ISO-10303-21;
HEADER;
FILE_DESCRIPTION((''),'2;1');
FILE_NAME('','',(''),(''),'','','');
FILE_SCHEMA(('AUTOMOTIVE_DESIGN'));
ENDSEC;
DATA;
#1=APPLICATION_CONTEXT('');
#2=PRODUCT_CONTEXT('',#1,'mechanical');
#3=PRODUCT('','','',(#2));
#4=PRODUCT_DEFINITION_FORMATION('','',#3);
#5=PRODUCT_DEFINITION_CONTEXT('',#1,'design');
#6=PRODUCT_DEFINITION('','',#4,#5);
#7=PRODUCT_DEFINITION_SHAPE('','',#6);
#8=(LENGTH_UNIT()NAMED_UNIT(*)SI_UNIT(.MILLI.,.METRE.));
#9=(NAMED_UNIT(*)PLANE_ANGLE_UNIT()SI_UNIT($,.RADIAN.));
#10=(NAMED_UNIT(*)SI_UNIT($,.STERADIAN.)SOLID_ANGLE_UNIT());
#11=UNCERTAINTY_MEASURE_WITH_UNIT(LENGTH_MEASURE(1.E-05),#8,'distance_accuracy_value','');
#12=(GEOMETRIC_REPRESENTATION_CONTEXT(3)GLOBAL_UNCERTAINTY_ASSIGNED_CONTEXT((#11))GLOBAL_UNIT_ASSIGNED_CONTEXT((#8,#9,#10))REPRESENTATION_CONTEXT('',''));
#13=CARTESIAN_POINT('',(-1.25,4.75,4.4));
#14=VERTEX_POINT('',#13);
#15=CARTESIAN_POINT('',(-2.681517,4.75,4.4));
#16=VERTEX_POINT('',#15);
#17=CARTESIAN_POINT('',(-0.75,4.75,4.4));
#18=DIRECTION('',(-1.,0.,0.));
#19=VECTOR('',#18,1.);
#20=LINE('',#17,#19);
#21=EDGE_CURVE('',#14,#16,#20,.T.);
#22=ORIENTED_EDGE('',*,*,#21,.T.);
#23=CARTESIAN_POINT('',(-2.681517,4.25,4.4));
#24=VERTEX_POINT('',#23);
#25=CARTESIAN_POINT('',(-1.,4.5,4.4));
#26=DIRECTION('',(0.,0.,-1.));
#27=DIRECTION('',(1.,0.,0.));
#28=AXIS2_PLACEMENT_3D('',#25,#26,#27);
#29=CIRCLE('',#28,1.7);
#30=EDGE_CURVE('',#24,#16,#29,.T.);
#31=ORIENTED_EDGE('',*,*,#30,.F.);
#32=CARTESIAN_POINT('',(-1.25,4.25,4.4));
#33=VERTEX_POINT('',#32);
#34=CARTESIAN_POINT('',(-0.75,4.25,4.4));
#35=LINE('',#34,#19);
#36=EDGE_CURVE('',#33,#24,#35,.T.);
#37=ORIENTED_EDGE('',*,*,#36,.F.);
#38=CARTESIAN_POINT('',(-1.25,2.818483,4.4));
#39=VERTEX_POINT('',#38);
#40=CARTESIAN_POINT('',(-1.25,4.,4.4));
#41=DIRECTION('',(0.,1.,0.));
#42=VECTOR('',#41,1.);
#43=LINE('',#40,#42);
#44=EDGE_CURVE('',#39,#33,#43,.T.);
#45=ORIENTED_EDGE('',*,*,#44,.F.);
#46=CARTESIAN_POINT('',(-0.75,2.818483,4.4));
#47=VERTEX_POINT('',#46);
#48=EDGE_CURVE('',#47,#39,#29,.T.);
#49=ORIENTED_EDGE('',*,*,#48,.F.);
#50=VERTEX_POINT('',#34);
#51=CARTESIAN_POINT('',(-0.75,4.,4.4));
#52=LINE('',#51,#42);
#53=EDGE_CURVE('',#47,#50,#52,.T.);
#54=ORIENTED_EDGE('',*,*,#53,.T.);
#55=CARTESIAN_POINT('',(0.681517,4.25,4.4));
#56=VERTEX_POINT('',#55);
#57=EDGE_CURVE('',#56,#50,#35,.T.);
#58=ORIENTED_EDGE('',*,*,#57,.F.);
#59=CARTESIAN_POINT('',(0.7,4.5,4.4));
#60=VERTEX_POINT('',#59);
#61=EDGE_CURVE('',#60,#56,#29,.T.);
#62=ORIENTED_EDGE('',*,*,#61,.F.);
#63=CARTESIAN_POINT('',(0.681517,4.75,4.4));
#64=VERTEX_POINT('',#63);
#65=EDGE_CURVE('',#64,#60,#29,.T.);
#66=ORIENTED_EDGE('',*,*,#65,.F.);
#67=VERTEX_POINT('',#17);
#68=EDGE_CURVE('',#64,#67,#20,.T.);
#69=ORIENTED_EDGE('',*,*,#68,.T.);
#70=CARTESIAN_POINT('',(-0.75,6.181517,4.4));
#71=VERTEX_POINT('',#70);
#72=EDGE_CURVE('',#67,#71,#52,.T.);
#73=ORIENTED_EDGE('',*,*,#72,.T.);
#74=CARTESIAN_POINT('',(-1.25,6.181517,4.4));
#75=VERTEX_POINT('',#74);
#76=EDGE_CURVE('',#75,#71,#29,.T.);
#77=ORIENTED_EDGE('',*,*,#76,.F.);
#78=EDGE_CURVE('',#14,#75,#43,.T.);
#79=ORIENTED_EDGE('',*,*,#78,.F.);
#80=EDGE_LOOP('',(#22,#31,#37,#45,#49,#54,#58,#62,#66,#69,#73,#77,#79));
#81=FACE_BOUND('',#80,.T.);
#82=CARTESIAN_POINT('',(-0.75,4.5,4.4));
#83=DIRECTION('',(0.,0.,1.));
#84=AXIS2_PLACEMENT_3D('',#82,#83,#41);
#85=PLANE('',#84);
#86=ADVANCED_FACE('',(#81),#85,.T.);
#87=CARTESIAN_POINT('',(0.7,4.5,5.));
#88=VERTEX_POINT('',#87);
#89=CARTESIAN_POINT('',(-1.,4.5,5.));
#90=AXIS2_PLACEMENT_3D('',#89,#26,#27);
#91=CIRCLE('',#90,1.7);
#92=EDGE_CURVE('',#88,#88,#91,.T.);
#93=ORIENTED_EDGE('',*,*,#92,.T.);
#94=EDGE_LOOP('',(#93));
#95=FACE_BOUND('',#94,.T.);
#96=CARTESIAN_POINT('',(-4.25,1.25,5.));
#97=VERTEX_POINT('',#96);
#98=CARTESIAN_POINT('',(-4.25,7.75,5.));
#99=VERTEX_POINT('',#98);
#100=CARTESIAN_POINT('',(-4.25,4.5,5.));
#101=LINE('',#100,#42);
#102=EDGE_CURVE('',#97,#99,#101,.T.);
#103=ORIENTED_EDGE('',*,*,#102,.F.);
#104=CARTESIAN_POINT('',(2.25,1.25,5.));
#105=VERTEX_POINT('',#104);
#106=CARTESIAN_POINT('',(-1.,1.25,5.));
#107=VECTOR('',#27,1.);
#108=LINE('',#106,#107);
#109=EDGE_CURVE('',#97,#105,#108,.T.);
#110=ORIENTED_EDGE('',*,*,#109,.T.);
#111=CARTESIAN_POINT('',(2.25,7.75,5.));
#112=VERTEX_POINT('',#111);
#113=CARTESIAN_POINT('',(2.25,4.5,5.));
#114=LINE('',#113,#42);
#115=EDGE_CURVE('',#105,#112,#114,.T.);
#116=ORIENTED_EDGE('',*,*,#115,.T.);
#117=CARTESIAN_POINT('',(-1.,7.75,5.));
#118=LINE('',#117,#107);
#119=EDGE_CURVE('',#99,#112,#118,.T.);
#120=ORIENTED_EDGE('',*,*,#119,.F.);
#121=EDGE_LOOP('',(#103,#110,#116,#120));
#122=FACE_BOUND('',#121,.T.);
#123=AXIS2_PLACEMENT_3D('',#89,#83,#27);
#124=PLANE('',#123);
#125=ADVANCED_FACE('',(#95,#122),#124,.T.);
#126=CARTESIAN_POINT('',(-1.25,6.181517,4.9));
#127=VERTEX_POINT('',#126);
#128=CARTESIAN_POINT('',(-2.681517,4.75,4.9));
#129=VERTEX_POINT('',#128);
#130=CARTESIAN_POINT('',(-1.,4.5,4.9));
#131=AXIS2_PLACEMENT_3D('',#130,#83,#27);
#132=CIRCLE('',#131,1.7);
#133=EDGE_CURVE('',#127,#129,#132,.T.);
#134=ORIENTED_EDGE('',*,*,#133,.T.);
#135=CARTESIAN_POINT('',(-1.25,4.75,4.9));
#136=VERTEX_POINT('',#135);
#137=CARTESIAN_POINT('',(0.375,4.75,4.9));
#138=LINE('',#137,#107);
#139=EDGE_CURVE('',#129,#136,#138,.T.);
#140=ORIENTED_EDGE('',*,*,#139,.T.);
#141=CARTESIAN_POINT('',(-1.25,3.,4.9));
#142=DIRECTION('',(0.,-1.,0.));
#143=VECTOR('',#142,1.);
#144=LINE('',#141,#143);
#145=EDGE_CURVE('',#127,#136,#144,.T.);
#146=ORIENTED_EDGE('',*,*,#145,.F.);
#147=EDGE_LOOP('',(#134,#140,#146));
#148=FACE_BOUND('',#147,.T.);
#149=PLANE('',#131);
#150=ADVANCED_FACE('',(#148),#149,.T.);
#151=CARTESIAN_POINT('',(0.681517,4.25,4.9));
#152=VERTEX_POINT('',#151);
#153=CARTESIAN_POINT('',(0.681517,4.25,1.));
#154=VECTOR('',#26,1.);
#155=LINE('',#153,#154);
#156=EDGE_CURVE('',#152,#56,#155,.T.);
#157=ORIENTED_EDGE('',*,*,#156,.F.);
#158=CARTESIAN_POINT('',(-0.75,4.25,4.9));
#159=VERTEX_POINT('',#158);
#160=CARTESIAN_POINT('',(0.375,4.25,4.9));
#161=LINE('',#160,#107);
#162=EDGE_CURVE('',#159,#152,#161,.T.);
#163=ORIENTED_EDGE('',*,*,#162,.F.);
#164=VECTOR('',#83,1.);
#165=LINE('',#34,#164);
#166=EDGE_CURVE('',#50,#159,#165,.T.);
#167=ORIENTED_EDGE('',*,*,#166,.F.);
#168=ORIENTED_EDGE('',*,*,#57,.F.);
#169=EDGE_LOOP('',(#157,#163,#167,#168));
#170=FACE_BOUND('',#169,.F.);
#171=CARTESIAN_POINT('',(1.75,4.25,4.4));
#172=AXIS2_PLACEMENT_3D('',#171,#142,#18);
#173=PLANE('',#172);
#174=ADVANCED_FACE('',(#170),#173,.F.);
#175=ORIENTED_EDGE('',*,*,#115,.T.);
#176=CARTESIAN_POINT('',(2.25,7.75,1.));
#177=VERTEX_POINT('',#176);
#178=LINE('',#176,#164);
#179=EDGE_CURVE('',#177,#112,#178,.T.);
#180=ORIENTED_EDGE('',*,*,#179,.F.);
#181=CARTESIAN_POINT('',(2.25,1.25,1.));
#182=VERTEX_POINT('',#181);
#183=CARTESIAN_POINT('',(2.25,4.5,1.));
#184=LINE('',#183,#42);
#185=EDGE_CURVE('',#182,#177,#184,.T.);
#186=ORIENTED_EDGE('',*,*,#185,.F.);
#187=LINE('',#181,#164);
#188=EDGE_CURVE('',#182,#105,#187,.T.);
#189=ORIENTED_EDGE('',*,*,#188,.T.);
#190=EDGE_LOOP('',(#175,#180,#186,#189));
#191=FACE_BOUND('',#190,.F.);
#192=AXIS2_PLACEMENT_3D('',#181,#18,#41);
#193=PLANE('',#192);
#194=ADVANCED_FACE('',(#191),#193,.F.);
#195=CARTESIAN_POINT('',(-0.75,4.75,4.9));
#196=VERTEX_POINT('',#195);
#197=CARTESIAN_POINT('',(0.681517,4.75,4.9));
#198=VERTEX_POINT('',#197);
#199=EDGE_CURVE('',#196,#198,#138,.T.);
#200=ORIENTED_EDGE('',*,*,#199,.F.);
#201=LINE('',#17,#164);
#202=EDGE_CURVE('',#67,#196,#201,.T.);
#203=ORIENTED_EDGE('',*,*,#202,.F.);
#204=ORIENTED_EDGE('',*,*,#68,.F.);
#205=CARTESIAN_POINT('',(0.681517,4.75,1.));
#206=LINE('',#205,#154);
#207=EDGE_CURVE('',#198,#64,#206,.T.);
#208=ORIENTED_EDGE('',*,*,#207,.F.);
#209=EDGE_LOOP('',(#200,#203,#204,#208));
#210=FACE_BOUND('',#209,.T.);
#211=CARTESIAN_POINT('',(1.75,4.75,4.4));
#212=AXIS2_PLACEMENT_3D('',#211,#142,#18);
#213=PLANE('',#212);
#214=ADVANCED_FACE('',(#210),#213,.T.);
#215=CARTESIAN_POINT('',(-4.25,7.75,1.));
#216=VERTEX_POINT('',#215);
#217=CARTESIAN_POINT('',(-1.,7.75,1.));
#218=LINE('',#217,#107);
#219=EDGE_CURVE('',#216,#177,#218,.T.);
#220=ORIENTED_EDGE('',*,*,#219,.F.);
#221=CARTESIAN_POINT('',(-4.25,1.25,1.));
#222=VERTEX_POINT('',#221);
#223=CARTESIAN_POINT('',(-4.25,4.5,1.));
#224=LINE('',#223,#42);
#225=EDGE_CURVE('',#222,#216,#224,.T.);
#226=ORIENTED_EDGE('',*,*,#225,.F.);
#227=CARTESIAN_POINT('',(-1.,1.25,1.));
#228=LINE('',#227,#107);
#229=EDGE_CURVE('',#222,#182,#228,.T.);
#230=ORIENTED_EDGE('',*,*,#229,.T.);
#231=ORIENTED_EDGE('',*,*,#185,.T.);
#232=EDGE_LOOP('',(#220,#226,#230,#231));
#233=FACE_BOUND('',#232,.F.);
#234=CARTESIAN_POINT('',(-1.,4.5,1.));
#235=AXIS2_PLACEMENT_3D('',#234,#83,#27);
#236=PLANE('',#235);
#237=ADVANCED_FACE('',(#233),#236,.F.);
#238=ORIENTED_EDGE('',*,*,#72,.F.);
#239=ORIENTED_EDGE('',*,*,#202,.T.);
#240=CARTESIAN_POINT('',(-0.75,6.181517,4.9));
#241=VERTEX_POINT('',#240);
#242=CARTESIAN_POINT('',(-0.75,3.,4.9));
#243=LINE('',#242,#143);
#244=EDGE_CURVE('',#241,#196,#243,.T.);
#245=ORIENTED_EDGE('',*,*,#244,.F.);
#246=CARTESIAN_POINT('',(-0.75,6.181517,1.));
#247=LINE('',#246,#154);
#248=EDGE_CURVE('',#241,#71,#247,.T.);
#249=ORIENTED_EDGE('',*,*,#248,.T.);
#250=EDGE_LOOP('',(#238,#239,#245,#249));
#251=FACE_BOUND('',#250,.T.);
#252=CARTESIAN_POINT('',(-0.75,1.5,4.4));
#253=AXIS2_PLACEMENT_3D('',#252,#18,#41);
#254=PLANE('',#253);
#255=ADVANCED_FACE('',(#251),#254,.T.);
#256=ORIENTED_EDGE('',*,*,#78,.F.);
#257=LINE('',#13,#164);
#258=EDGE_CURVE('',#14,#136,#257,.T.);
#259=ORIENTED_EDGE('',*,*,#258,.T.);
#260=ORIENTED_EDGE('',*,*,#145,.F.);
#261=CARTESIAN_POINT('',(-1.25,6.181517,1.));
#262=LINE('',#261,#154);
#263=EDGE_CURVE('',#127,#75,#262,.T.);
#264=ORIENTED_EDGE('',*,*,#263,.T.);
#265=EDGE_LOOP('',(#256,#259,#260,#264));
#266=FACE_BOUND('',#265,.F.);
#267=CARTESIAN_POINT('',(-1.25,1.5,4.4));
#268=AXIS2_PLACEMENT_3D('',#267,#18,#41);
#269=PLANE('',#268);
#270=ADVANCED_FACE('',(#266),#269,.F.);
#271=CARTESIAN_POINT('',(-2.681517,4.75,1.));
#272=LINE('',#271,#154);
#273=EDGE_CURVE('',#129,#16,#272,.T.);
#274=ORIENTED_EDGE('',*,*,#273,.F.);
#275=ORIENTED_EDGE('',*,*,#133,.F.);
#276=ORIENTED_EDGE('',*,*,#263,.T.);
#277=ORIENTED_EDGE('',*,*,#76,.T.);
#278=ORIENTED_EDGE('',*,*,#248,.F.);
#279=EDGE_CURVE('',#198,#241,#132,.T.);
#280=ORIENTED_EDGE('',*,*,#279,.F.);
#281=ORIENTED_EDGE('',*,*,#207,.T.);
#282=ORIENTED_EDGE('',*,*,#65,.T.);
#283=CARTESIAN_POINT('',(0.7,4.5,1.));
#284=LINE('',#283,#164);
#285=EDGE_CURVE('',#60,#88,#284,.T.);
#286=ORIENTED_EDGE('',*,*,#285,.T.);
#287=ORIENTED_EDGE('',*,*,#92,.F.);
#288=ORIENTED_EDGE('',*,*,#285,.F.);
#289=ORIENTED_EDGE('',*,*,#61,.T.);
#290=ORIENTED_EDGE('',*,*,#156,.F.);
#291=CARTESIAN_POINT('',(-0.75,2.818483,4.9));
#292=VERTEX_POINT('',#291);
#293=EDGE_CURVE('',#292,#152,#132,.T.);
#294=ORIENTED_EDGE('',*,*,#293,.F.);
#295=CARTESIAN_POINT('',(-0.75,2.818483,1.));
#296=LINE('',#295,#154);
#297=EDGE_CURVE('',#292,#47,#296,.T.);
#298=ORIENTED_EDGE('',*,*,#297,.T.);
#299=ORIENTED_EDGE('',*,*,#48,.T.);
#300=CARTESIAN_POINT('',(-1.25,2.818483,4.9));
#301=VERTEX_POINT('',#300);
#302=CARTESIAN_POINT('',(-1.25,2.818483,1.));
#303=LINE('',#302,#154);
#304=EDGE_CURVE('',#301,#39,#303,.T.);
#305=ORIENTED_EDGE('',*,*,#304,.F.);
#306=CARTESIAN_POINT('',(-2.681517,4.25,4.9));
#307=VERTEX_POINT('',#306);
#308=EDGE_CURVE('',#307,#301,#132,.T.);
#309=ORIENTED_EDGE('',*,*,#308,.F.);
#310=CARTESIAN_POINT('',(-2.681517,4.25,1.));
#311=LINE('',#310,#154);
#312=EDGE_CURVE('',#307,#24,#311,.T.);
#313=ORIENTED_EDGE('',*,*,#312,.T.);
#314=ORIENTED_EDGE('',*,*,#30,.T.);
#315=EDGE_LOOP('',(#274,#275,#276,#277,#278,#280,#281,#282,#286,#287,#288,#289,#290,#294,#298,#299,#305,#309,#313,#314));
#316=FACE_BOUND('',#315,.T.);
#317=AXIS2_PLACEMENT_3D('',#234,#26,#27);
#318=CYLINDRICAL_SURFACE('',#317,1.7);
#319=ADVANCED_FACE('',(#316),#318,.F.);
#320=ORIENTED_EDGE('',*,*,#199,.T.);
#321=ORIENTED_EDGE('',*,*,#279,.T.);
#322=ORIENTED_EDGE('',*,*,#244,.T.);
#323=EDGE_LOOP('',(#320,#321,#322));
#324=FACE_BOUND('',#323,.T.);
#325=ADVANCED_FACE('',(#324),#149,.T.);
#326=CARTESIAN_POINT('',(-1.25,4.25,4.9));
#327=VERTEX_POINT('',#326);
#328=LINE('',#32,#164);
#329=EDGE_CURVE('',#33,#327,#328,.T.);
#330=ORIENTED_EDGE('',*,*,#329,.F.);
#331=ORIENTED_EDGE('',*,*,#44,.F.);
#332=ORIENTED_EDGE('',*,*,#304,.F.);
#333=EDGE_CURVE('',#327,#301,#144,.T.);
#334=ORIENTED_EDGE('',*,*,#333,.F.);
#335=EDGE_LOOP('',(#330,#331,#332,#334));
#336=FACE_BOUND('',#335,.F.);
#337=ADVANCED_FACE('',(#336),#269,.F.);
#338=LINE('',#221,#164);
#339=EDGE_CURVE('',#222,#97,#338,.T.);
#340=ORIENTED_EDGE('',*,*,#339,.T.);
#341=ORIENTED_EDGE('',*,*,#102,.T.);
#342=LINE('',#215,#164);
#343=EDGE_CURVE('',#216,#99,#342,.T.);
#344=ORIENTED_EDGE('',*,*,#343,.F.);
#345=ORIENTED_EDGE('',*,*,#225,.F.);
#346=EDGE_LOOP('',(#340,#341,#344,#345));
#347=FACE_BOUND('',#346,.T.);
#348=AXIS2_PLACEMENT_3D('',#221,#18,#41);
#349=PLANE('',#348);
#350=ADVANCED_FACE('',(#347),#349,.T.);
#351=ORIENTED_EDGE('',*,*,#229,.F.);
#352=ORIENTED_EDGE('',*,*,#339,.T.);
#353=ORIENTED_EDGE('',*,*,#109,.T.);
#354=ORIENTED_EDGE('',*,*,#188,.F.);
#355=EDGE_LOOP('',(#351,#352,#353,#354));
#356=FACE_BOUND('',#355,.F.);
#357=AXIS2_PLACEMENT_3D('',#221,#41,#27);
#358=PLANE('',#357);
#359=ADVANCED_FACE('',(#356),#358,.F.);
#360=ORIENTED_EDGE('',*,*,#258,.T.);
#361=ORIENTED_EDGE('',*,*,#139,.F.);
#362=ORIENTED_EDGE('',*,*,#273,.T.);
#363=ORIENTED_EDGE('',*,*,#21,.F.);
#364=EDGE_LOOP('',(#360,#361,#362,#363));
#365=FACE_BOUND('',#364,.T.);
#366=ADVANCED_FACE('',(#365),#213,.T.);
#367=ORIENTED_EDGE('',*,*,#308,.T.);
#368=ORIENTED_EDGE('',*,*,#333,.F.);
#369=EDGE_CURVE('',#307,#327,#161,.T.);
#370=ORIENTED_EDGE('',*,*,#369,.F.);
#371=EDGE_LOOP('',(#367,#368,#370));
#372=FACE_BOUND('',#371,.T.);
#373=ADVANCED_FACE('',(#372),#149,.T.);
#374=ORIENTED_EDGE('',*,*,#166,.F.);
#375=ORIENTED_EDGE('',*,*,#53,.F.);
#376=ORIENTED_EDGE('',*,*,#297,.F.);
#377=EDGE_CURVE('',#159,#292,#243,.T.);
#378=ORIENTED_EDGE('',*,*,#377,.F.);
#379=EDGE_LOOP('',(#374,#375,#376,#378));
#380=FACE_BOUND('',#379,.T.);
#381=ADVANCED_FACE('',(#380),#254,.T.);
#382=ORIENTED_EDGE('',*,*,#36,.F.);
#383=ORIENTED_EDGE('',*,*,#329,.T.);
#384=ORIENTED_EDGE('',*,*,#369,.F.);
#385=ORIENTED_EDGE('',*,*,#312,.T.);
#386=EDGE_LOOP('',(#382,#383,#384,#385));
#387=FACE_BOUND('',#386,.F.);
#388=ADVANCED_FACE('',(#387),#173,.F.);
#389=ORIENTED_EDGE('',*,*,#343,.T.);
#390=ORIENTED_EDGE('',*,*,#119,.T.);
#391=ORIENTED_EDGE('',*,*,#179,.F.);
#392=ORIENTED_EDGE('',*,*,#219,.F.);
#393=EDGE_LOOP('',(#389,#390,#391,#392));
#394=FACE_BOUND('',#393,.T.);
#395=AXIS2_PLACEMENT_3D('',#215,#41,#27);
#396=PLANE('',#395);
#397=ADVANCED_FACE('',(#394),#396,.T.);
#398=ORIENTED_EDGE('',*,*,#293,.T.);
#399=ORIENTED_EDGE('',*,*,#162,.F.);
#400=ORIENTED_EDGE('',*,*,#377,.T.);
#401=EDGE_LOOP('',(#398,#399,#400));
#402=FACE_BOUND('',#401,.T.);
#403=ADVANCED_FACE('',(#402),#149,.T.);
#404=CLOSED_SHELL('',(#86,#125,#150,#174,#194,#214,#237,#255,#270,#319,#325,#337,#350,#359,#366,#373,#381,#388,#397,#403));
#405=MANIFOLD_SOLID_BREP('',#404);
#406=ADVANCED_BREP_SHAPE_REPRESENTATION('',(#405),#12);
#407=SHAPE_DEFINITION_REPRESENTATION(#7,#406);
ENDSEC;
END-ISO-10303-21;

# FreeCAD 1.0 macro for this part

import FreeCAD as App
import Part
import Sketcher
from FreeCAD import Vector
Q = App.Units.Quantity


def add_polygon(sketch, points):
    """Adds a closed chain of lines whose ends are joined by coincident constraints."""
    first, n = sketch.GeometryCount, len(points)
    for a, b in zip(points, points[1:] + points[:1]):
        sketch.addGeometry(Part.LineSegment(App.Vector(*a, 0), App.Vector(*b, 0)), False)
    for i in range(n):
        sketch.addConstraint(Sketcher.Constraint("Coincident", first + i, 2, first + (i + 1) % n, 1))

doc = App.newDocument("Part")
params = doc.addObject("Spreadsheet::Sheet", "Params")
for row, (alias, value) in enumerate([
    ("sketch1_height", "5 mm"),
    ("sketch1_width", "0.5 mm"),
    ("pad1_length", "3 mm"),
    ("sketch2_height", "5 mm"),
    ("sketch2_width", "0.5 mm"),
    ("pad2_length", "3 mm"),
    ("sketch3_diameter", "3.4 mm"),
    ("pad3_length", "3.9 mm"),
    ("sketch4_diameter", "3.4 mm"),
    ("pad4_length", "5 mm"),
    ("sketch5_width", "6.5 mm"),
    ("pad5_length", "4 mm"),
], start=1):
    params.set(f"A{row}", alias)
    params.set(f"B{row}", "=" + value)
    params.setAlias(f"B{row}", alias)

body = doc.addObject("PartDesign::Body", "Body")

sketch1 = body.newObject("Sketcher::SketchObject", "Sketch")
sketch1.AttachmentSupport = (doc.getObject("XY_Plane"), [""])
sketch1.MapMode = "FlatFace"
add_polygon(sketch1, [(0, 5), (0, 0), (0.5, 0), (0.5, 5)])
sketch1.addConstraint([
    Sketcher.Constraint("Vertical", 0),
    Sketcher.Constraint("Horizontal", 1),
    Sketcher.Constraint("Vertical", 2),
    Sketcher.Constraint("Horizontal", 3),
    Sketcher.Constraint("Coincident", 0, 2, -1, 1),
    Sketcher.Constraint("DistanceY", 0, 2, 0, 1, Q("5 mm")),
    Sketcher.Constraint("DistanceX", 1, 1, 1, 2, Q("0.5 mm")),
])
sketch1.setExpression("Constraints[9]", "Params.sketch1_height")
sketch1.setExpression("Constraints[10]", "Params.sketch1_width")
pad1 = body.newObject("PartDesign::Pad", "Pad")
pad1.Profile = sketch1
pad1.setExpression("Length", "Params.pad1_length")
body2 = doc.addObject("PartDesign::Body", "Body001")
doc.recompute()

body.Placement = App.Placement(Vector(2.75, -0.25, 3.4), App.Rotation(Vector(0, 0, 1), 90))
boolean = body2.newObject("PartDesign::Boolean", "Boolean")
boolean.Type = "Fuse"
boolean.addObjects([body])
body3 = doc.addObject("PartDesign::Body", "Body002")

sketch2 = body3.newObject("Sketcher::SketchObject", "Sketch001")
sketch2.AttachmentSupport = (doc.getObject("XY_Plane002"), [""])
sketch2.MapMode = "FlatFace"
sketch2.AttachmentOffset = App.Placement(Vector(0, 0, 3.4), App.Rotation())
add_polygon(sketch2, [(-0.2, 2), (-0.2, -3), (0.2, -3), (0.2, 2)])
sketch2.addConstraint([
    Sketcher.Constraint("Vertical", 0),
    Sketcher.Constraint("Horizontal", 1),
    Sketcher.Constraint("Vertical", 2),
    Sketcher.Constraint("Horizontal", 3),
    Sketcher.Constraint("DistanceY", 0, 2, 0, 1, Q("5 mm")),
    Sketcher.Constraint("DistanceX", 1, 1, 1, 2, Q("0.5 mm")),
    Sketcher.Constraint("DistanceY", 0, 2, -1, 1, Q("3 mm")),
    Sketcher.Constraint("DistanceX", 0, 2, -1, 1, Q("0.25 mm")),
])
sketch2.setExpression("Constraints[8]", "Params.sketch2_height")
sketch2.setExpression("Constraints[9]", "Params.sketch2_width")
pad2 = body3.newObject("PartDesign::Pad", "Pad001")
pad2.Profile = sketch2
pad2.setExpression("Length", "Params.pad2_length")
body4 = doc.addObject("PartDesign::Body", "Body003")

sketch3 = body4.newObject("Sketcher::SketchObject", "Sketch002")
sketch3.AttachmentSupport = (doc.getObject("XY_Plane003"), [""])
sketch3.MapMode = "FlatFace"
sketch3.addGeometry(Part.Circle(Vector(0, 0, 0), Vector(0, 0, 1), 1.7), False)
sketch3.addConstraint([
    Sketcher.Constraint("Coincident", 0, 3, -1, 1),
    Sketcher.Constraint("Diameter", 0, Q("3.4 mm")),
])
sketch3.setExpression("Constraints[1]", "Params.sketch3_diameter")
pad3 = body4.newObject("PartDesign::Pad", "Pad002")
pad3.Profile = sketch3
pad3.setExpression("Length", "Params.pad3_length")
doc.recompute()

boolean2 = body4.newObject("PartDesign::Boolean", "Boolean001")
boolean2.Type = "Cut"
boolean2.addObjects([body3])
doc.recompute()

boolean3 = body4.newObject("PartDesign::Boolean", "Boolean002")
boolean3.Type = "Cut"
boolean3.addObjects([body2])
body5 = doc.addObject("PartDesign::Body", "Body004")

sketch4 = body5.newObject("Sketcher::SketchObject", "Sketch003")
sketch4.AttachmentSupport = (doc.getObject("XY_Plane004"), [""])
sketch4.MapMode = "FlatFace"
sketch4.addGeometry(Part.Circle(Vector(0, 0, 0), Vector(0, 0, 1), 1.7), False)
sketch4.addConstraint([
    Sketcher.Constraint("Coincident", 0, 3, -1, 1),
    Sketcher.Constraint("Diameter", 0, Q("3.4 mm")),
])
sketch4.setExpression("Constraints[1]", "Params.sketch4_diameter")
pad4 = body5.newObject("PartDesign::Pad", "Pad003")
pad4.Profile = sketch4
pad4.setExpression("Length", "Params.pad4_length")
body6 = doc.addObject("PartDesign::Body", "Body005")

sketch5 = body6.newObject("Sketcher::SketchObject", "Sketch004")
sketch5.AttachmentSupport = (doc.getObject("XY_Plane005"), [""])
sketch5.MapMode = "FlatFace"
add_polygon(sketch5, [(-3, 3), (-3, -3), (3, -3), (3, 3)])
sketch5.addConstraint([
    Sketcher.Constraint("Vertical", 0),
    Sketcher.Constraint("Horizontal", 1),
    Sketcher.Constraint("Vertical", 2),
    Sketcher.Constraint("Horizontal", 3),
    Sketcher.Constraint("Symmetric", 0, 2, 2, 2, -1, 1),
    Sketcher.Constraint("Equal", 3, 0),
    Sketcher.Constraint("DistanceX", 1, 1, 1, 2, Q("6.5 mm")),
])
sketch5.setExpression("Constraints[10]", "Params.sketch5_width")
pad5 = body6.newObject("PartDesign::Pad", "Pad004")
pad5.Profile = sketch5
pad5.setExpression("Length", "Params.pad5_length")
doc.recompute()

boolean4 = body6.newObject("PartDesign::Boolean", "Boolean003")
boolean4.Type = "Cut"
boolean4.addObjects([body5])
doc.recompute()

boolean5 = body6.newObject("PartDesign::Boolean", "Boolean004")
boolean5.Type = "Fuse"
boolean5.addObjects([body4])
body7 = doc.addObject("PartDesign::Body", "Body006")
doc.recompute()

body6.Placement = App.Placement(Vector(-1, 4.5, 1), App.Rotation(Vector(0, 0, 1), 0))
boolean6 = body7.newObject("PartDesign::Boolean", "Boolean005")
boolean6.Type = "Fuse"
boolean6.addObjects([body6])

doc.recompute()
